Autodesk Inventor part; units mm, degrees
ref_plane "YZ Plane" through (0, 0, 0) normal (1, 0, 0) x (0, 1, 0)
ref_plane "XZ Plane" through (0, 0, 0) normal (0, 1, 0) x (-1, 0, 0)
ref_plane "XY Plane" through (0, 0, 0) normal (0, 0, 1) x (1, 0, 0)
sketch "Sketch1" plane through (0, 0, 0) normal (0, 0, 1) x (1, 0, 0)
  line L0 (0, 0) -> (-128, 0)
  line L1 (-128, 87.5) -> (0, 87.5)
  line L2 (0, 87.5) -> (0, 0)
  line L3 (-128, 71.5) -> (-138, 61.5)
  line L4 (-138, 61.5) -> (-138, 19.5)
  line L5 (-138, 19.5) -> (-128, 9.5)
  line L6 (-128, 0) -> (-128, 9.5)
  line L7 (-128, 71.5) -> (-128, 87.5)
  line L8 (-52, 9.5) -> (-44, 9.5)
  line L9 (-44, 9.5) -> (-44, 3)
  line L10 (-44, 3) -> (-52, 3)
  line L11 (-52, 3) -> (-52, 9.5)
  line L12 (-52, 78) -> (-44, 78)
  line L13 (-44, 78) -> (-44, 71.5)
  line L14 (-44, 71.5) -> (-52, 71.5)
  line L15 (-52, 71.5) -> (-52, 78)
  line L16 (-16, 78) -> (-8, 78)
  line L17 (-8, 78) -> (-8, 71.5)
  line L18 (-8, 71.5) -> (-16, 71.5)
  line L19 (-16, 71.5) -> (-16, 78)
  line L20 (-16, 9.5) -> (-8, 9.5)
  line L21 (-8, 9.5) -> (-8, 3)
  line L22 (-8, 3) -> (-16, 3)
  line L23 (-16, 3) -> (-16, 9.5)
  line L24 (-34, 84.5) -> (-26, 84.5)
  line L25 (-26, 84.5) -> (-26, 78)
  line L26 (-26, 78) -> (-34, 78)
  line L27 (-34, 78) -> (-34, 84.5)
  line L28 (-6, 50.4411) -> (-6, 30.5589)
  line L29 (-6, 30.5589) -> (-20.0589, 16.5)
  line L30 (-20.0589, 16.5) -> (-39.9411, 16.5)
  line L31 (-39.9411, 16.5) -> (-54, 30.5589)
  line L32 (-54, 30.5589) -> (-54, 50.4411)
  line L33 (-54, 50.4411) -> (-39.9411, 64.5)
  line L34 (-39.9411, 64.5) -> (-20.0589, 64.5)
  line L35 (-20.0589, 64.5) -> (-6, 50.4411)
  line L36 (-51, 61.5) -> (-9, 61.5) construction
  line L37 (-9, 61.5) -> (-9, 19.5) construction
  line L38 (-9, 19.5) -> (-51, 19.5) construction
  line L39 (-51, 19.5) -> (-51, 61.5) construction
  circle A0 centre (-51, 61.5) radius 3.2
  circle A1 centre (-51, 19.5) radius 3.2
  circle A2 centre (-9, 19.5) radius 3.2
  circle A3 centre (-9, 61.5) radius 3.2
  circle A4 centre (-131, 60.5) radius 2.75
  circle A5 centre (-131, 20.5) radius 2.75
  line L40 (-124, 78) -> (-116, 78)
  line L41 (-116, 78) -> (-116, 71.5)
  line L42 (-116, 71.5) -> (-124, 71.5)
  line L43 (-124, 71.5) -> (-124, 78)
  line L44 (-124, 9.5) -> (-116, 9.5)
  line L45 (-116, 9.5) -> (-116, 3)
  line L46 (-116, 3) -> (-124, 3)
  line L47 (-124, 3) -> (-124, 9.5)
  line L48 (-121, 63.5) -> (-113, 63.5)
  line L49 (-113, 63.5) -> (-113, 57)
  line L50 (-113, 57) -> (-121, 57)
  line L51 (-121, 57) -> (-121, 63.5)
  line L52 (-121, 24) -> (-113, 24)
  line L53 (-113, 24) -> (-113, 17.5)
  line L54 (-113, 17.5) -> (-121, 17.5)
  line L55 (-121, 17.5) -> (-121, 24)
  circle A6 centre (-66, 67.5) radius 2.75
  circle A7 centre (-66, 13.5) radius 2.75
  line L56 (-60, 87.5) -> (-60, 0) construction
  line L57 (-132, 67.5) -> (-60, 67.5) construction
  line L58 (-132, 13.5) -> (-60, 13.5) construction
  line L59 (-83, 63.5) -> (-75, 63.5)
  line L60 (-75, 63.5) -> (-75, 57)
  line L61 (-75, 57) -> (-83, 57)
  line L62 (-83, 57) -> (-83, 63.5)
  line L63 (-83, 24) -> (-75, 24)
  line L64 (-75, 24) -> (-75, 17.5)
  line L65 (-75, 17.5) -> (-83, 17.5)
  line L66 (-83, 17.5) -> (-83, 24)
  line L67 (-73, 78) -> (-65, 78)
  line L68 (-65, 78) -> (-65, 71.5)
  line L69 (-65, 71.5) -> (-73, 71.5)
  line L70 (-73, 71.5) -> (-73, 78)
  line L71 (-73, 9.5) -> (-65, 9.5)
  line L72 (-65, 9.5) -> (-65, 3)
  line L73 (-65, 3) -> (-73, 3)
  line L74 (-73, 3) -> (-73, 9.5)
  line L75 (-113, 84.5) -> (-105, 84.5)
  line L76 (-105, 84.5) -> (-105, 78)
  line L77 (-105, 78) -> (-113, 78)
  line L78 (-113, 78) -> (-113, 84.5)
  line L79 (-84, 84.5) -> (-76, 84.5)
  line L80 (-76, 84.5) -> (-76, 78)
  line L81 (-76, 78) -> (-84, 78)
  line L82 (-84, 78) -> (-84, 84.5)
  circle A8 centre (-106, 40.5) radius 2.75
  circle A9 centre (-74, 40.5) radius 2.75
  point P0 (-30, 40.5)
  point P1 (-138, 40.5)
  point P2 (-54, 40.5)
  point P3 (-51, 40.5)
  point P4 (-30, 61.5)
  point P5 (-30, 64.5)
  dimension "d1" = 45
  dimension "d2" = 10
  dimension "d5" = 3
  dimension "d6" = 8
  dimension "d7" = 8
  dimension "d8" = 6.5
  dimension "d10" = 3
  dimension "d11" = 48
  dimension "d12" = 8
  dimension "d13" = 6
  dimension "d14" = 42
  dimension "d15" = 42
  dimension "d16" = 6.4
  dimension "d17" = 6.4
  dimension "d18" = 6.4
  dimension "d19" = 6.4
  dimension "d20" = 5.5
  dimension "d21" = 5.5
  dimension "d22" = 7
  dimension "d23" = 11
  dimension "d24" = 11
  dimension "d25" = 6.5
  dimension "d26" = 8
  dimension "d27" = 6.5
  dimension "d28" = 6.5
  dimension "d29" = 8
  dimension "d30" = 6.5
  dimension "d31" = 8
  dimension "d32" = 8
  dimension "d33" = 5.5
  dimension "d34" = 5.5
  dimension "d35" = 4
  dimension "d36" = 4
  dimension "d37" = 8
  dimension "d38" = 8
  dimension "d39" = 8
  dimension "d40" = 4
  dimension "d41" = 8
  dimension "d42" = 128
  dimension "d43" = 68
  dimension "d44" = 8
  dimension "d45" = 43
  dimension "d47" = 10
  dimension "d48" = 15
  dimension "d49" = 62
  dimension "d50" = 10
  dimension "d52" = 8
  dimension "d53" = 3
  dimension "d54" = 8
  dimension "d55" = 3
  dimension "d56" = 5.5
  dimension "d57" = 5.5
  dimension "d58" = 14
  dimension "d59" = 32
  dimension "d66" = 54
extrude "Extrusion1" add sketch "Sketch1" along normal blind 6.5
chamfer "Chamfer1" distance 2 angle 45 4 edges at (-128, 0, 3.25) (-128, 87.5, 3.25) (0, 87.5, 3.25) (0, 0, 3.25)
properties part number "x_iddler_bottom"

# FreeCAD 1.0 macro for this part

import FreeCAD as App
import Part
import Sketcher
Q = App.Units.Quantity


def edges_at(feature, points):
    """Names of the edges that pass closest to the given points."""
    edges = feature.Shape.Edges
    near = lambda p: min(range(len(edges)), key=lambda i: edges[i].distToShape(Part.Vertex(*p))[0])
    return sorted({f"Edge{near(p) + 1}" for p in points})


def add_polygon(sketch, points):
    """Adds a closed chain of lines whose ends are joined by coincident constraints."""
    first, n = sketch.GeometryCount, len(points)
    for a, b in zip(points, points[1:] + points[:1]):
        sketch.addGeometry(Part.LineSegment(App.Vector(*a, 0), App.Vector(*b, 0)), False)
    for i in range(n):
        sketch.addConstraint(Sketcher.Constraint("Coincident", first + i, 2, first + (i + 1) % n, 1))

doc = App.newDocument("Part")
body = doc.addObject("PartDesign::Body", "Body")

# Sketch on XY plane
sketch1 = body.newObject("Sketcher::SketchObject", "Sketch")
sketch1.AttachmentSupport = (doc.getObject("XY_Plane"), [""])
sketch1.MapMode = "FlatFace"
add_polygon(sketch1, [(-128, 0), (0, 0), (0, 87.5), (-128, 87.5), (-128, 71.5), (-138, 61.5), (-138, 19.5), (-128, 9.5)])  # lines 0-7
add_polygon(sketch1, [(-124, 3), (-124, 9.5), (-116, 9.5), (-116, 3)])  # lines 8-11
sketch1.addGeometry(Part.Circle(App.Vector(-131, 20.5, 0), App.Vector(0, 0, 1), 2.8), False)  # 12
add_polygon(sketch1, [(-121, 17.5), (-121, 24), (-113, 24), (-113, 17.5)])  # lines 13-16
add_polygon(sketch1, [(-83, 17.5), (-83, 24), (-75, 24), (-75, 17.5)])  # lines 17-20
sketch1.addGeometry(Part.Circle(App.Vector(-106, 40.5, 0), App.Vector(0, 0, 1), 2.8), False)  # 21
sketch1.addGeometry(Part.Circle(App.Vector(-74, 40.5, 0), App.Vector(0, 0, 1), 2.8), False)  # 22
add_polygon(sketch1, [(-73, 3), (-73, 9.5), (-65, 9.5), (-65, 3)])  # lines 23-26
add_polygon(sketch1, [(-52, 3), (-52, 9.5), (-44, 9.5), (-44, 3)])  # lines 27-30
sketch1.addGeometry(Part.Circle(App.Vector(-66, 13.5, 0), App.Vector(0, 0, 1), 2.8), False)  # 31
sketch1.addGeometry(Part.Circle(App.Vector(-51, 19.5, 0), App.Vector(0, 0, 1), 3.2), False)  # 32
add_polygon(sketch1, [(-16, 3), (-16, 9.5), (-8, 9.5), (-8, 3)])  # lines 33-36
sketch1.addGeometry(Part.Circle(App.Vector(-9, 19.5, 0), App.Vector(0, 0, 1), 3.2), False)  # 37
add_polygon(sketch1, [(-20.1, 64.5), (-6, 50.4), (-6, 30.6), (-20.1, 16.5), (-39.9, 16.5), (-54, 30.6), (-54, 50.4), (-39.9, 64.5)])  # lines 38-45
sketch1.addGeometry(Part.Circle(App.Vector(-131, 60.5, 0), App.Vector(0, 0, 1), 2.8), False)  # 46
add_polygon(sketch1, [(-121, 57), (-121, 63.5), (-113, 63.5), (-113, 57)])  # lines 47-50
add_polygon(sketch1, [(-83, 57), (-83, 63.5), (-75, 63.5), (-75, 57)])  # lines 51-54
add_polygon(sketch1, [(-124, 71.5), (-124, 78), (-116, 78), (-116, 71.5)])  # lines 55-58
add_polygon(sketch1, [(-113, 78), (-113, 84.5), (-105, 84.5), (-105, 78)])  # lines 59-62
add_polygon(sketch1, [(-84, 78), (-84, 84.5), (-76, 84.5), (-76, 78)])  # lines 63-66
sketch1.addGeometry(Part.Circle(App.Vector(-51, 61.5, 0), App.Vector(0, 0, 1), 3.2), False)  # 67
sketch1.addGeometry(Part.Circle(App.Vector(-9, 61.5, 0), App.Vector(0, 0, 1), 3.2), False)  # 68
sketch1.addGeometry(Part.Circle(App.Vector(-66, 67.5, 0), App.Vector(0, 0, 1), 2.8), False)  # 69
add_polygon(sketch1, [(-73, 71.5), (-73, 78), (-65, 78), (-65, 71.5)])  # lines 70-73
add_polygon(sketch1, [(-52, 71.5), (-52, 78), (-44, 78), (-44, 71.5)])  # lines 74-77
add_polygon(sketch1, [(-16, 71.5), (-16, 78), (-8, 78), (-8, 71.5)])  # lines 78-81
add_polygon(sketch1, [(-34, 78), (-34, 84.5), (-26, 84.5), (-26, 78)])  # lines 82-85
sketch1.addConstraint([
    Sketcher.Constraint("Horizontal", 0),
    Sketcher.Constraint("Vertical", 1),
    Sketcher.Constraint("Horizontal", 2),
    Sketcher.Constraint("Vertical", 3),
    Sketcher.Constraint("Vertical", 5),
    Sketcher.Constraint("Vertical", 7),
    Sketcher.Constraint("Vertical", 8),
    Sketcher.Constraint("Horizontal", 9),
    Sketcher.Constraint("Vertical", 10),
    Sketcher.Constraint("Horizontal", 11),
    Sketcher.Constraint("Vertical", 13),
    Sketcher.Constraint("Horizontal", 14),
    Sketcher.Constraint("Vertical", 15),
    Sketcher.Constraint("Horizontal", 16),
    Sketcher.Constraint("Vertical", 17),
    Sketcher.Constraint("Horizontal", 18),
    Sketcher.Constraint("Vertical", 19),
    Sketcher.Constraint("Horizontal", 20),
    Sketcher.Constraint("Vertical", 23),
    Sketcher.Constraint("Horizontal", 24),
    Sketcher.Constraint("Vertical", 25),
    Sketcher.Constraint("Horizontal", 26),
    Sketcher.Constraint("Vertical", 27),
    Sketcher.Constraint("Horizontal", 28),
    Sketcher.Constraint("Vertical", 29),
    Sketcher.Constraint("Horizontal", 30),
    Sketcher.Constraint("Vertical", 33),
    Sketcher.Constraint("Horizontal", 34),
    Sketcher.Constraint("Vertical", 35),
    Sketcher.Constraint("Horizontal", 36),
    Sketcher.Constraint("Vertical", 39),
    Sketcher.Constraint("Horizontal", 41),
    Sketcher.Constraint("Vertical", 43),
    Sketcher.Constraint("Horizontal", 45),
    Sketcher.Constraint("Vertical", 47),
    Sketcher.Constraint("Horizontal", 48),
    Sketcher.Constraint("Vertical", 49),
    Sketcher.Constraint("Horizontal", 50),
    Sketcher.Constraint("Vertical", 51),
    Sketcher.Constraint("Horizontal", 52),
    Sketcher.Constraint("Vertical", 53),
    Sketcher.Constraint("Horizontal", 54),
    Sketcher.Constraint("Vertical", 55),
    Sketcher.Constraint("Horizontal", 56),
    Sketcher.Constraint("Vertical", 57),
    Sketcher.Constraint("Horizontal", 58),
    Sketcher.Constraint("Vertical", 59),
    Sketcher.Constraint("Horizontal", 60),
    Sketcher.Constraint("Vertical", 61),
    Sketcher.Constraint("Horizontal", 62),
    Sketcher.Constraint("Vertical", 63),
    Sketcher.Constraint("Horizontal", 64),
    Sketcher.Constraint("Vertical", 65),
    Sketcher.Constraint("Horizontal", 66),
    Sketcher.Constraint("Vertical", 70),
    Sketcher.Constraint("Horizontal", 71),
    Sketcher.Constraint("Vertical", 72),
    Sketcher.Constraint("Horizontal", 73),
    Sketcher.Constraint("Vertical", 74),
    Sketcher.Constraint("Horizontal", 75),
    Sketcher.Constraint("Vertical", 76),
    Sketcher.Constraint("Horizontal", 77),
    Sketcher.Constraint("Vertical", 78),
    Sketcher.Constraint("Horizontal", 79),
    Sketcher.Constraint("Vertical", 80),
    Sketcher.Constraint("Horizontal", 81),
    Sketcher.Constraint("Vertical", 82),
    Sketcher.Constraint("Horizontal", 83),
    Sketcher.Constraint("Vertical", 84),
    Sketcher.Constraint("Horizontal", 85),
    Sketcher.Constraint("Coincident", 0, 2, -1, 1),
    Sketcher.Constraint("Equal", 12, 21),
    Sketcher.Constraint("Equal", 21, 22),
    Sketcher.Constraint("Equal", 22, 31),
    Sketcher.Constraint("Equal", 32, 37),
    Sketcher.Constraint("Equal", 31, 46),
    Sketcher.Constraint("Equal", 37, 67),
    Sketcher.Constraint("Equal", 67, 68),
    Sketcher.Constraint("Equal", 46, 69),
    Sketcher.Constraint("Perpendicular", 4, 6),
    Sketcher.Constraint("Parallel", 6, 38),
    Sketcher.Constraint("Perpendicular", 38, 40),
    Sketcher.Constraint("Perpendicular", 40, 42),
    Sketcher.Constraint("Perpendicular", 42, 44),
    Sketcher.Constraint("Horizontal", 21, 3, 22, 3),
    Sketcher.Constraint("Horizontal", 32, 3, 37, 3),
    Sketcher.Constraint("Horizontal", 67, 3, 68, 3),
    Sketcher.Constraint("Horizontal", 68, 3, 4, 2),
    Sketcher.Constraint("Horizontal", 37, 3, 5, 2),
    Sketcher.Constraint("Horizontal", 6, 2, 8, 2),
    Sketcher.Constraint("Horizontal", 14, 2, 17, 2),
    Sketcher.Constraint("Horizontal", 16, 2, 19, 2),
    Sketcher.Constraint("Horizontal", 9, 2, 23, 2),
    Sketcher.Constraint("Horizontal", 11, 2, 25, 2),
    Sketcher.Constraint("Horizontal", 24, 2, 27, 2),
    Sketcher.Constraint("Horizontal", 26, 2, 29, 2),
    Sketcher.Constraint("Horizontal", 28, 2, 33, 2),
    Sketcher.Constraint("Horizontal", 30, 2, 35, 2),
    Sketcher.Constraint("Horizontal", 39, 2, 42, 2),
    Sketcher.Constraint("Horizontal", 38, 2, 43, 2),
    Sketcher.Constraint("Horizontal", 48, 2, 51, 2),
    Sketcher.Constraint("Horizontal", 50, 2, 53, 2),
    Sketcher.Constraint("Horizontal", 3, 2, 57, 2),
    Sketcher.Constraint("Horizontal", 56, 2, 61, 2),
    Sketcher.Constraint("Horizontal", 60, 2, 63, 2),
    Sketcher.Constraint("Horizontal", 62, 2, 65, 2),
    Sketcher.Constraint("Horizontal", 66, 2, 70, 2),
    Sketcher.Constraint("Horizontal", 58, 2, 72, 2),
    Sketcher.Constraint("Horizontal", 71, 2, 74, 2),
    Sketcher.Constraint("Horizontal", 73, 2, 76, 2),
    Sketcher.Constraint("Horizontal", 75, 2, 78, 2),
    Sketcher.Constraint("Horizontal", 77, 2, 80, 2),
    Sketcher.Constraint("Horizontal", 64, 2, 82, 2),
    Sketcher.Constraint("Horizontal", 79, 2, 84, 2),
    Sketcher.Constraint("Vertical", 12, 3, 46, 3),
    Sketcher.Constraint("Vertical", 32, 3, 67, 3),
    Sketcher.Constraint("Vertical", 37, 3, 68, 3),
    Sketcher.Constraint("Vertical", 31, 3, 69, 3),
    Sketcher.Constraint("Vertical", 3, 2, 6, 2),
    Sketcher.Constraint("Vertical", 41, 2, 44, 2),
    Sketcher.Constraint("Vertical", 40, 2, 45, 2),
    Sketcher.Constraint("Vertical", 16, 2, 47, 2),
    Sketcher.Constraint("Vertical", 15, 2, 48, 2),
    Sketcher.Constraint("Vertical", 20, 2, 51, 2),
    Sketcher.Constraint("Vertical", 19, 2, 52, 2),
    Sketcher.Constraint("Vertical", 11, 2, 55, 2),
    Sketcher.Constraint("Vertical", 10, 2, 56, 2),
    Sketcher.Constraint("Vertical", 49, 2, 59, 2),
    Sketcher.Constraint("Vertical", 26, 2, 70, 2),
    Sketcher.Constraint("Vertical", 25, 2, 71, 2),
    Sketcher.Constraint("Vertical", 30, 2, 74, 2),
    Sketcher.Constraint("Vertical", 29, 2, 75, 2),
    Sketcher.Constraint("Vertical", 36, 2, 78, 2),
    Sketcher.Constraint("Vertical", 35, 2, 79, 2),
    Sketcher.Constraint("Equal", 11, 14),
    Sketcher.Constraint("Equal", 16, 18),
    Sketcher.Constraint("Equal", 20, 24),
    Sketcher.Constraint("Equal", 26, 28),
    Sketcher.Constraint("Equal", 30, 34),
    Sketcher.Constraint("Equal", 58, 60),
    Sketcher.Constraint("Equal", 62, 64),
    Sketcher.Constraint("Equal", 81, 83),
    Sketcher.Constraint("Equal", 10, 13),
    Sketcher.Constraint("Equal", 45, 39),
    Sketcher.Constraint("Equal", 35, 47),
    Sketcher.Constraint("Equal", 53, 55),
    Sketcher.Constraint("Equal", 57, 59),
    Sketcher.Constraint("Diameter", 12, Q("5.5 mm")),
    Sketcher.Constraint("Diameter", 32, Q("6.4 mm")),
    Sketcher.Constraint("DistanceX", 0, 1, 0, 2, Q("128 mm")),
    Sketcher.Constraint("DistanceX", 9, 1, 9, 2, Q("8 mm")),
    Sketcher.Constraint("DistanceY", 5, 2, 5, 1, Q("42 mm")),
    Sketcher.Constraint("DistanceY", 8, 1, 8, 2, Q("6.5 mm")),
    Sketcher.Constraint("DistanceY", -1, 1, 10, 2, Q("3 mm")),
    Sketcher.Constraint("DistanceX", 34, 2, -1, 1, Q("8 mm")),
    Sketcher.Constraint("DistanceX", 38, 2, -1, 1, Q("6 mm")),
    Sketcher.Constraint("DistanceX", 42, 2, -1, 1, Q("54 mm")),
    Sketcher.Constraint("DistanceY", 3, 2, 3, 1, Q("16 mm")),
    Sketcher.Constraint("DistanceY", 1, 1, 1, 2, Q("87.5 mm")),
    Sketcher.Constraint("DistanceX", 12, 3, -1, 1, Q("131 mm")),
    Sketcher.Constraint("DistanceX", 21, 3, -1, 1, Q("106 mm")),
    Sketcher.Constraint("DistanceX", 22, 3, -1, 1, Q("74 mm")),
    Sketcher.Constraint("DistanceX", 31, 3, -1, 1, Q("66 mm")),
    Sketcher.Constraint("DistanceX", 32, 3, -1, 1, Q("51 mm")),
    Sketcher.Constraint("DistanceX", 37, 3, -1, 1, Q("9 mm")),
    Sketcher.Constraint("DistanceX", 8, 2, -1, 1, Q("124 mm")),
    Sketcher.Constraint("DistanceX", 13, 2, -1, 1, Q("121 mm")),
    Sketcher.Constraint("DistanceY", -1, 1, 13, 2, Q("24 mm")),
    Sketcher.Constraint("DistanceX", 17, 2, -1, 1, Q("83 mm")),
    Sketcher.Constraint("DistanceX", 23, 2, -1, 1, Q("73 mm")),
    Sketcher.Constraint("DistanceX", 27, 2, -1, 1, Q("52 mm")),
    Sketcher.Constraint("DistanceY", -1, 1, 49, 2, Q("57 mm")),
    Sketcher.Constraint("DistanceX", 63, 2, -1, 1, Q("84 mm")),
    Sketcher.Constraint("DistanceX", 82, 2, -1, 1, Q("34 mm")),
    Sketcher.Constraint("DistanceY", -1, 1, 12, 3, Q("20.5 mm")),
    Sketcher.Constraint("DistanceY", -1, 1, 21, 3, Q("40.5 mm")),
    Sketcher.Constraint("DistanceY", -1, 1, 31, 3, Q("13.5 mm")),
    Sketcher.Constraint("DistanceY", -1, 1, 46, 3, Q("60.5 mm")),
    Sketcher.Constraint("DistanceY", -1, 1, 69, 3, Q("67.5 mm")),
    Sketcher.Constraint("DistanceY", -1, 1, 40, 2, Q("16.5 mm")),
    Sketcher.Constraint("DistanceX", 41, 2, 41, 1, Q("19.8822 mm")),
])
pad1 = body.newObject("PartDesign::Pad", "Pad")
pad1.Profile = sketch1
pad1.Length = 6.5
doc.recompute()

chamfer = body.newObject("PartDesign::Chamfer", "Chamfer")
chamfer.Base = (pad1, edges_at(pad1, [
    (-128, 0, 3.25),
    (-128, 87.5, 3.25),
    (0, 87.5, 3.25),
    (0, 0, 3.25),
]))
chamfer.Size = 2

doc.recompute()
